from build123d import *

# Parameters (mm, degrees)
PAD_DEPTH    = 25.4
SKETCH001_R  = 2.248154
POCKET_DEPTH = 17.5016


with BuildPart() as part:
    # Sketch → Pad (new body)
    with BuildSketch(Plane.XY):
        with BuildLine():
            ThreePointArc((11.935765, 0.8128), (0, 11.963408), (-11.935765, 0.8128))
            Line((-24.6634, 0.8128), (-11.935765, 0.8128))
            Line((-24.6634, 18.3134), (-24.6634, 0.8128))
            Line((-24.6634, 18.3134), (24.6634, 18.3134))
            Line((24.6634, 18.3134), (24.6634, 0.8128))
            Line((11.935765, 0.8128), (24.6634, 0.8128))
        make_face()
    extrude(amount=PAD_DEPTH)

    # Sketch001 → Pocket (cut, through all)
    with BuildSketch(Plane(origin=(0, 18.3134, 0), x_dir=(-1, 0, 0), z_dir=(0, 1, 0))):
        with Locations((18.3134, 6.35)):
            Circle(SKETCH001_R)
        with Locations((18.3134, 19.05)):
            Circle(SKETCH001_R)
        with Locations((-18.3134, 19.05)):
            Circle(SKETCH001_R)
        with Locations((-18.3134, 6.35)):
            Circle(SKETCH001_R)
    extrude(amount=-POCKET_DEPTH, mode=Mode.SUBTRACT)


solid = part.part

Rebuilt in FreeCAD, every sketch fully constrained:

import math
import FreeCAD as App
import Part
import Sketcher

V = App.Vector
Q = App.Units.Quantity

doc = App.newDocument("Part")
body = doc.addObject("PartDesign::Body", "Body")

sketch1 = doc.addObject("Sketcher::SketchObject", "Sketch")
body.addObject(sketch1)
sketch1.AttachmentSupport = (doc.XY_Plane, [""])
sketch1.MapMode = "FlatFace"
sketch1.addGeometry(Part.ArcOfCircle(Part.Circle(V(0, 0, 0), V(0, 0, 1), 11.963408), math.radians(3.895705), math.radians(176.104295)), False)
sketch1.addGeometry(Part.LineSegment(V(11.935765, 0.8128, 0), V(24.6634, 0.8128, 0)), False)
sketch1.addGeometry(Part.LineSegment(V(24.6634, 0.8128, 0), V(24.6634, 18.3134, 0)), False)
sketch1.addGeometry(Part.LineSegment(V(24.6634, 18.3134, 0), V(-24.6634, 18.3134, 0)), False)
sketch1.addGeometry(Part.LineSegment(V(-24.6634, 18.3134, 0), V(-24.6634, 0.8128, 0)), False)
sketch1.addGeometry(Part.LineSegment(V(-24.6634, 0.8128, 0), V(-11.935765, 0.8128, 0)), False)
sketch1.addConstraint(Sketcher.Constraint("Coincident", 0, 1, 1, 1))
sketch1.addConstraint(Sketcher.Constraint("Coincident", 1, 2, 2, 1))
sketch1.addConstraint(Sketcher.Constraint("Coincident", 2, 2, 3, 1))
sketch1.addConstraint(Sketcher.Constraint("Coincident", 3, 2, 4, 1))
sketch1.addConstraint(Sketcher.Constraint("Coincident", 4, 2, 5, 1))
sketch1.addConstraint(Sketcher.Constraint("Coincident", 5, 2, 0, 2))
sketch1.addConstraint(Sketcher.Constraint("Horizontal", 1))
sketch1.addConstraint(Sketcher.Constraint("Vertical", 2))
sketch1.addConstraint(Sketcher.Constraint("Horizontal", 3))
sketch1.addConstraint(Sketcher.Constraint("Vertical", 4))
sketch1.addConstraint(Sketcher.Constraint("Horizontal", 5))
sketch1.addConstraint(Sketcher.Constraint("Coincident", 0, 3, -1, 1))
sketch1.addConstraint(Sketcher.Constraint("Symmetric", 1, 2, 4, 2, -2))
sketch1.addConstraint(Sketcher.Constraint("DistanceX", 3, 2, 3, 1, Q("1.942 in")))
sketch1.addConstraint(Sketcher.Constraint("DistanceY", 2, 1, 2, 2, Q("0.689 in")))
sketch1.addConstraint(Sketcher.Constraint("DistanceY", -1, 1, 0, 1, Q("0.032 in")))
sketch1.addConstraint(Sketcher.Constraint("Radius", 0, 11.963408))
pad1 = doc.addObject("PartDesign::Pad", "Pad")
body.addObject(pad1)
pad1.Profile = sketch1
pad1.Length = Q("1 in")

sketch2 = doc.addObject("Sketcher::SketchObject", "Sketch001")
body.addObject(sketch2)
sketch2.AttachmentSupport = (doc.XZ_Plane, [""])
sketch2.MapMode = "FlatFace"
sketch2.AttachmentOffset = App.Placement(V(0, 0, -0.721 * 25.4), App.Rotation())
sketch2.addGeometry(Part.Circle(V(-18.3134, 6.35, 0), V(0, 0, 1), 2.248154), False)
sketch2.addGeometry(Part.Circle(V(-18.3134, 19.05, 0), V(0, 0, 1), 2.248154), False)
sketch2.addGeometry(Part.Circle(V(18.3134, 19.05, 0), V(0, 0, 1), 2.248154), False)
sketch2.addGeometry(Part.Circle(V(18.3134, 6.35, 0), V(0, 0, 1), 2.248154), False)
sketch2.addConstraint(Sketcher.Constraint("Equal", 0, 1))
sketch2.addConstraint(Sketcher.Constraint("Equal", 1, 2))
sketch2.addConstraint(Sketcher.Constraint("Equal", 2, 3))
sketch2.addConstraint(Sketcher.Constraint("Symmetric", 1, 3, 2, 3, -2))
sketch2.addConstraint(Sketcher.Constraint("Symmetric", 0, 3, 3, 3, -2))
sketch2.addConstraint(Sketcher.Constraint("Vertical", 0, 3, 1, 3))
sketch2.addConstraint(Sketcher.Constraint("DistanceY", 0, 3, 1, 3, Q("0.5 in")))
sketch2.addConstraint(Sketcher.Constraint("DistanceY", -1, 1, 0, 3, Q("0.25 in")))
sketch2.addConstraint(Sketcher.Constraint("DistanceX", 0, 3, -1, 1, Q("0.721 in")))
sketch2.addConstraint(Sketcher.Constraint("Diameter", 0, 4.496308))
pocket1 = doc.addObject("PartDesign::Pocket", "Pocket")
body.addObject(pocket1)
pocket1.Profile = sketch2
pocket1.Type = "ThroughAll"
pocket1.Reversed = True

doc.recompute()
